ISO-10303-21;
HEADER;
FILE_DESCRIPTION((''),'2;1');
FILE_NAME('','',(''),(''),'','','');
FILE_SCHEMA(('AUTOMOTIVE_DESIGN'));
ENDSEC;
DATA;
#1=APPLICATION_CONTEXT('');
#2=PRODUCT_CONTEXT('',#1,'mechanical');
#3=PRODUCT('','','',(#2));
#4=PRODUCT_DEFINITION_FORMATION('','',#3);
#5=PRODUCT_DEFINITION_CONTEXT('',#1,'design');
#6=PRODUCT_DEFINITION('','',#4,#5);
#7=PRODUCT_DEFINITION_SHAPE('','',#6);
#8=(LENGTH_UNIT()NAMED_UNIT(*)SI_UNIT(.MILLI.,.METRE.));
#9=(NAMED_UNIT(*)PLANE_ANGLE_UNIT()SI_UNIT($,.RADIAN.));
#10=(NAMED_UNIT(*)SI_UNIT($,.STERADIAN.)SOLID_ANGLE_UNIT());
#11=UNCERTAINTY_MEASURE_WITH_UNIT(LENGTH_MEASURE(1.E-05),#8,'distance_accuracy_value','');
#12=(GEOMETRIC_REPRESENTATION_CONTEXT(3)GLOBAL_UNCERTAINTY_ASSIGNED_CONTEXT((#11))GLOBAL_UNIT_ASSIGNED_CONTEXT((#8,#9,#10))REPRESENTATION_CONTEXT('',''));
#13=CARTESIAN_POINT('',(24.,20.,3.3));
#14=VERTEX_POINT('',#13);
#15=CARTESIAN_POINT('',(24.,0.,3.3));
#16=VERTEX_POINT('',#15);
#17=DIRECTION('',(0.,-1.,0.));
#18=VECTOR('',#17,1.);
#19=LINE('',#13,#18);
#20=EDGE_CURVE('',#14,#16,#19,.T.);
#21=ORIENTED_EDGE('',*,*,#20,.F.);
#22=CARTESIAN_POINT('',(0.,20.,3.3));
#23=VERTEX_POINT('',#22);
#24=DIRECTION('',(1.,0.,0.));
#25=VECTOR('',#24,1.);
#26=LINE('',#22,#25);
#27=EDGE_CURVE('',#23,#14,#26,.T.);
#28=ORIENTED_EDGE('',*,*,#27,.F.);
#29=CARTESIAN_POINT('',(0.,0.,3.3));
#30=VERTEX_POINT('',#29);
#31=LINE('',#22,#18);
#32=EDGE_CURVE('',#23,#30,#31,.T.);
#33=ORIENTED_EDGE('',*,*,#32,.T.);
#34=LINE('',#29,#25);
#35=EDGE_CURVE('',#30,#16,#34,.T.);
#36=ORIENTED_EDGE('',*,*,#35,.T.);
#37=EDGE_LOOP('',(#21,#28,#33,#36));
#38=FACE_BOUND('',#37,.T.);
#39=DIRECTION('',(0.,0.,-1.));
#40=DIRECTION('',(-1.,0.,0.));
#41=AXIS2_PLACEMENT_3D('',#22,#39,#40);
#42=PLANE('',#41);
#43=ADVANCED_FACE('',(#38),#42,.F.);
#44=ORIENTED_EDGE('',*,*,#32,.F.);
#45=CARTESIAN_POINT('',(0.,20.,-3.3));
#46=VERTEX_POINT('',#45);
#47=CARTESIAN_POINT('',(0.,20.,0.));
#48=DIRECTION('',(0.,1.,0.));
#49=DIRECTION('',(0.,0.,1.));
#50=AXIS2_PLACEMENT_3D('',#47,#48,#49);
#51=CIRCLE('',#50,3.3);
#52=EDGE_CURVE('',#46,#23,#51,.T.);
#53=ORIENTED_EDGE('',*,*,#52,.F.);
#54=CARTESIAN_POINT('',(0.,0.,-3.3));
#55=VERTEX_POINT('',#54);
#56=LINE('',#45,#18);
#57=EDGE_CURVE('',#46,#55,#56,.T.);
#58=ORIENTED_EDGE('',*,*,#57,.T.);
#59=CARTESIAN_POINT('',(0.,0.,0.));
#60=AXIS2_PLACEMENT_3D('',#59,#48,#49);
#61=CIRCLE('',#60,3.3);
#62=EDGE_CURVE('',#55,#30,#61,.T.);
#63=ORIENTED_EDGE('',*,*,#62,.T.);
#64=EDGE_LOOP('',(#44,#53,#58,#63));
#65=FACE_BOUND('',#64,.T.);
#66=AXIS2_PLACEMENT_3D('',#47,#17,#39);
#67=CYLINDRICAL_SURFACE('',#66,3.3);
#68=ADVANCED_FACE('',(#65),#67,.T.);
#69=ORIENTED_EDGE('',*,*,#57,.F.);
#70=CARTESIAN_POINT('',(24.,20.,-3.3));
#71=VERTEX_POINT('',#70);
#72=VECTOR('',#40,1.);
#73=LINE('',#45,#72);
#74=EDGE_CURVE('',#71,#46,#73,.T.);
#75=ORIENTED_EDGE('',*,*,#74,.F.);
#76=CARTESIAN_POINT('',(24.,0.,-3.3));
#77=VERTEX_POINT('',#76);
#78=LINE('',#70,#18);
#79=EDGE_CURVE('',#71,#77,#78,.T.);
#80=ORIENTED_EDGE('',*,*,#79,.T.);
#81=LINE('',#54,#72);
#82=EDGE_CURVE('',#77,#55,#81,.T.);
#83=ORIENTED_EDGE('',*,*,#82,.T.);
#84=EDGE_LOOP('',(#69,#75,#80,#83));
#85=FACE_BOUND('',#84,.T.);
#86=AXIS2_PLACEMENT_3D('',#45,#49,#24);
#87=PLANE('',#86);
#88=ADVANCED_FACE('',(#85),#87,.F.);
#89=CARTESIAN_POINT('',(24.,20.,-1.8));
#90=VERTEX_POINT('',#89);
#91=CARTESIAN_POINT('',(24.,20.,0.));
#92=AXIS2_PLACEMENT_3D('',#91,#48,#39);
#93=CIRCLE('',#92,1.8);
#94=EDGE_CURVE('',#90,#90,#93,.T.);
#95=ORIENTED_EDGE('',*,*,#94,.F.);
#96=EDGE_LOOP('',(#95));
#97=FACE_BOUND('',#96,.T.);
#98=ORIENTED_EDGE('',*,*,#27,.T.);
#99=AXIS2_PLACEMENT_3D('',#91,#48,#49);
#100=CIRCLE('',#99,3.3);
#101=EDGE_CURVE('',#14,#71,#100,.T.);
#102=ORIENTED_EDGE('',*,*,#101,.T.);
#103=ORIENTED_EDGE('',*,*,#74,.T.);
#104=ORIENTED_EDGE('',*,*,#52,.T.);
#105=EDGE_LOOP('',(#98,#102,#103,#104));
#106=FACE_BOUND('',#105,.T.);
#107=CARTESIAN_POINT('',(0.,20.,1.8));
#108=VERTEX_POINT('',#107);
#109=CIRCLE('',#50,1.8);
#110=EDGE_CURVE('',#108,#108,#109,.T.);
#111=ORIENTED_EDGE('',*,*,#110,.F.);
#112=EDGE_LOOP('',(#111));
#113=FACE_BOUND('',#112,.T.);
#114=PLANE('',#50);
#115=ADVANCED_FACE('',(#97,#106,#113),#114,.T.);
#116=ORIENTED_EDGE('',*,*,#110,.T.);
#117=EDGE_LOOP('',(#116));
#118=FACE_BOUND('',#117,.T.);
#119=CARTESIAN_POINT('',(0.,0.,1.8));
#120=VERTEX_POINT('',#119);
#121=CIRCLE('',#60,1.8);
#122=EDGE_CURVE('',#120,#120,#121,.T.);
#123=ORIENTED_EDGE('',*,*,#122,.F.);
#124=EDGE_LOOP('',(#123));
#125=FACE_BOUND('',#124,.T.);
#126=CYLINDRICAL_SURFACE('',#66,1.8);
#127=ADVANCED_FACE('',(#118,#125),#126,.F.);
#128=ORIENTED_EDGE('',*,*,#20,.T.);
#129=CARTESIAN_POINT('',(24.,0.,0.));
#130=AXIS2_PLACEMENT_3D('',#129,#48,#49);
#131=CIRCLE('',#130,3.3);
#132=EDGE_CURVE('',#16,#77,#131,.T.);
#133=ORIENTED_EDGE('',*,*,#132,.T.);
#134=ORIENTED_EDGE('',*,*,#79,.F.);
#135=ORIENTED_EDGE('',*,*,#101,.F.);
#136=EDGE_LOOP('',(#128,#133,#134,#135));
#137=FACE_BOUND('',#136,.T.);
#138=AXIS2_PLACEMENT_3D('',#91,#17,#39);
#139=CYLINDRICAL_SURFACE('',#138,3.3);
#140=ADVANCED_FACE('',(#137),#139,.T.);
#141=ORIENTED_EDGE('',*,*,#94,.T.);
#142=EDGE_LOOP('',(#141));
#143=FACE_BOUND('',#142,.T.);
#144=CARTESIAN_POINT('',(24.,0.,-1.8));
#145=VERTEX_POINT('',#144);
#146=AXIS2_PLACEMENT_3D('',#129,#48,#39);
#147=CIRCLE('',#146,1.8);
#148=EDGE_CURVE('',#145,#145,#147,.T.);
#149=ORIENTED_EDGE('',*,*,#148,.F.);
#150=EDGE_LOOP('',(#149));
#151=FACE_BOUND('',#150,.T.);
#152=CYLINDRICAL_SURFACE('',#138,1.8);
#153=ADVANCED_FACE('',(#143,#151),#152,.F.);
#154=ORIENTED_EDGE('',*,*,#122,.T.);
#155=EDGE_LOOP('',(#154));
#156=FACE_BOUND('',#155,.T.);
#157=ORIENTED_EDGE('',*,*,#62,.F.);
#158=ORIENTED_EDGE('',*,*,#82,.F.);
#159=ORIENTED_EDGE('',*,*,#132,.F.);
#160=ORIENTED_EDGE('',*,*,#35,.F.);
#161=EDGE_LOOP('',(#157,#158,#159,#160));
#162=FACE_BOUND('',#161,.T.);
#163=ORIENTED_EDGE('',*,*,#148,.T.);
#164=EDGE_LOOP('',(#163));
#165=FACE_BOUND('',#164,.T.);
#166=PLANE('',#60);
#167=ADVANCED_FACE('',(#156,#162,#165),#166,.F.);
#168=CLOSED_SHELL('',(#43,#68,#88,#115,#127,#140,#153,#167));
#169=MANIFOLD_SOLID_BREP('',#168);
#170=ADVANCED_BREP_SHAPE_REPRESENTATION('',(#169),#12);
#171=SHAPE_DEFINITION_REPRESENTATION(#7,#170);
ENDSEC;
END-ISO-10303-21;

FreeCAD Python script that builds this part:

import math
import FreeCAD as App
import Part
import Sketcher

V = App.Vector

doc = App.newDocument("Part")
body = doc.addObject("PartDesign::Body", "Body")

sketch1 = doc.addObject("Sketcher::SketchObject", "Sketch")
body.addObject(sketch1)
sketch1.AttachmentSupport = (doc.XZ_Plane, [""])
sketch1.MapMode = "FlatFace"
sketch1.addGeometry([
    Part.LineSegment(V(24, -3.3, 0), V(0, -3.3, 0)),
    Part.ArcOfCircle(Part.Circle(V(0, 0, 0), V(0, 0, 1), 3.3), math.radians(90), math.radians(270)),
    Part.LineSegment(V(0, 3.3, 0), V(24, 3.3, 0)),
    Part.ArcOfCircle(Part.Circle(V(24, 0, 0), V(0, 0, 1), 3.3), math.radians(-90), math.radians(90)),
    Part.Circle(V(24, 0, 0), V(0, 0, 1), 1.8),
    Part.Circle(V(0, 0, 0), V(0, 0, 1), 1.8),
], False)
sketch1.addConstraint([
    Sketcher.Constraint("Tangent", 0, 2, 1, 2),
    Sketcher.Constraint("Tangent", 1, 1, 2, 1),
    Sketcher.Constraint("Tangent", 2, 2, 3, 2),
    Sketcher.Constraint("Tangent", 3, 1, 0, 1),
    Sketcher.Constraint("Horizontal", 0),
    Sketcher.Constraint("Horizontal", 2),
    Sketcher.Constraint("Coincident", 1, 3, -1, 1),
    Sketcher.Constraint("Coincident", 5, 3, -1, 1),
    Sketcher.Constraint("Coincident", 4, 3, 3, 3),
    Sketcher.Constraint("Equal", 4, 5),
    Sketcher.Constraint("Diameter", 4, 3.6),
    Sketcher.Constraint("Radius", 1, 3.3),
    Sketcher.Constraint("DistanceX", 0, 2, 0, 1, 24.0),
])
pad1 = doc.addObject("PartDesign::Pad", "Pad")
body.addObject(pad1)
pad1.Profile = sketch1
pad1.Length = 20
pad1.Reversed = True

doc.recompute()
